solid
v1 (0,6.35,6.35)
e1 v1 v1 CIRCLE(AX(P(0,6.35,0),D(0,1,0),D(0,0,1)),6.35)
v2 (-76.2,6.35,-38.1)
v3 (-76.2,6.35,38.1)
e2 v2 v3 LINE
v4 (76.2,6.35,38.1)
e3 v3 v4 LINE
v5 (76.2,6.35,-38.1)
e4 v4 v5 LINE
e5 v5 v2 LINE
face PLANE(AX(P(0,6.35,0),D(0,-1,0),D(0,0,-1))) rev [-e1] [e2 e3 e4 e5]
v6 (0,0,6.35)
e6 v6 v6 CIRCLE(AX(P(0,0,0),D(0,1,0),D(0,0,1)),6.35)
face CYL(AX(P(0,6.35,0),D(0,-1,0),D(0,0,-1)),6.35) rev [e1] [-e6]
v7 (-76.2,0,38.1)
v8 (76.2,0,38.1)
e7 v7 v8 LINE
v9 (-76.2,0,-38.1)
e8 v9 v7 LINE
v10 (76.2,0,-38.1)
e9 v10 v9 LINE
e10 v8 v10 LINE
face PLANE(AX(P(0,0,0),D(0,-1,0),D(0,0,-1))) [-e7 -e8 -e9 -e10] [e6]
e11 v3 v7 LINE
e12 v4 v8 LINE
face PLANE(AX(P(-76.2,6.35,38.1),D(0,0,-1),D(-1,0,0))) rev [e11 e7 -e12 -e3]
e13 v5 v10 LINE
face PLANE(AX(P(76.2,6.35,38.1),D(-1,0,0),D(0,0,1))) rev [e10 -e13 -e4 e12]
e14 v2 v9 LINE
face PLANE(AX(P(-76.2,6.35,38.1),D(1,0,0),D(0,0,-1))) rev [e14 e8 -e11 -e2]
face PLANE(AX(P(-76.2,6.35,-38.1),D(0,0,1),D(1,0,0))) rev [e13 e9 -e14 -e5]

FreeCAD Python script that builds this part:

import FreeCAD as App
import Part
import Sketcher
from FreeCAD import Vector
Q = App.Units.Quantity


def add_polygon(sketch, points):
    """Adds a closed chain of lines whose ends are joined by coincident constraints."""
    first, n = sketch.GeometryCount, len(points)
    for a, b in zip(points, points[1:] + points[:1]):
        sketch.addGeometry(Part.LineSegment(App.Vector(*a, 0), App.Vector(*b, 0)), False)
    for i in range(n):
        sketch.addConstraint(Sketcher.Constraint("Coincident", first + i, 2, first + (i + 1) % n, 1))

doc = App.newDocument("Part")
body = doc.addObject("PartDesign::Body", "Body")

# Sketch on XZ plane
sketch1 = doc.addObject("Sketcher::SketchObject", "Sketch")
body.addObject(sketch1)
sketch1.AttachmentSupport = (doc.XZ_Plane, [""])
sketch1.MapMode = "FlatFace"
add_polygon(sketch1, [(-76, -38), (-76, 38), (76, 38), (76, -38)])  # lines 0-3
sketch1.addGeometry(Part.Circle(Vector(0, 0, 0), Vector(0, 0, 1), 6), False)  # 4
sketch1.addConstraint([
    Sketcher.Constraint("Vertical", 0),
    Sketcher.Constraint("Horizontal", 1),
    Sketcher.Constraint("Vertical", 2),
    Sketcher.Constraint("Horizontal", 3),
    Sketcher.Constraint("Coincident", 4, 3, -1, 1),
    Sketcher.Constraint("Symmetric", 0, 2, 2, 2, -1, 1),
    Sketcher.Constraint("Diameter", 4, Q("0.5 in")),
    Sketcher.Constraint("DistanceX", 1, 1, 1, 2, Q("6 in")),
    Sketcher.Constraint("DistanceY", 0, 1, 0, 2, Q("3 in")),
])
pad1 = doc.addObject("PartDesign::Pad", "Pad")
body.addObject(pad1)
pad1.Profile = sketch1
pad1.Length = Q("0.25 in")
pad1.Reversed = True

doc.recompute()
